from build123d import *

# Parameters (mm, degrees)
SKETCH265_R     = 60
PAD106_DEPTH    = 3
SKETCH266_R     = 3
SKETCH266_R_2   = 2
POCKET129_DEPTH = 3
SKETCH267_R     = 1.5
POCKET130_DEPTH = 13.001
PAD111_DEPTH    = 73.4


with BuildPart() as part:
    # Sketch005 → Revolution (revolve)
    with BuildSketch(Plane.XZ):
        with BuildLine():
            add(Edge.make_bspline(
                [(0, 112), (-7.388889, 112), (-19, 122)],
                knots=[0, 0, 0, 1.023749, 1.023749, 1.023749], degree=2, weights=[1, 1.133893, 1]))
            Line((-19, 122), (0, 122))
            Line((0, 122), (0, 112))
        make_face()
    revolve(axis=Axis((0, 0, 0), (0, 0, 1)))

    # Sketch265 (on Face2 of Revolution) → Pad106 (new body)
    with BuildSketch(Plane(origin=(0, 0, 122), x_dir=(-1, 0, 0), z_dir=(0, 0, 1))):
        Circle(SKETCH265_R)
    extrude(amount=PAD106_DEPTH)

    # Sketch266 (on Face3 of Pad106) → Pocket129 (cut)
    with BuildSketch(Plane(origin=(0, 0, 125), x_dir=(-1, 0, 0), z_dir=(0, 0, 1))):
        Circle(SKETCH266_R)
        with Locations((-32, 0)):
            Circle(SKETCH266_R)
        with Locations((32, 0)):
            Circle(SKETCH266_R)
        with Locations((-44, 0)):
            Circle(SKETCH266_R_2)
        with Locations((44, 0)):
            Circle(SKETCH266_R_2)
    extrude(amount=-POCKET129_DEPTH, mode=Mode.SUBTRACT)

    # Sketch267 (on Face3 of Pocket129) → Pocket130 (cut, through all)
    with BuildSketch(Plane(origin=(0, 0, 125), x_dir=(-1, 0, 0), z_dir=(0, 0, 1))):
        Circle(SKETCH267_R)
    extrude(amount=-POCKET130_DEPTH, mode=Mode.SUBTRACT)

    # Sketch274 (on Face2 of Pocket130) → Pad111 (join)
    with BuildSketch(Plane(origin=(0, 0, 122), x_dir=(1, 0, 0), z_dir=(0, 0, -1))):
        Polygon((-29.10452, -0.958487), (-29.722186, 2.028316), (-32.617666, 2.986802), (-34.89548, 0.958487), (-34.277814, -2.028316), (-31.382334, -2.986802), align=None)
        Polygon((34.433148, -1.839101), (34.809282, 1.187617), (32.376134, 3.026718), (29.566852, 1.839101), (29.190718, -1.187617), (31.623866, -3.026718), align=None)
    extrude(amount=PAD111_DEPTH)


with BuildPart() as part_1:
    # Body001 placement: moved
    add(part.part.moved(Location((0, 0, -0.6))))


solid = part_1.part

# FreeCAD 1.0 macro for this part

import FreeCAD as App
import Part
import Sketcher
from FreeCAD import Vector
Q = App.Units.Quantity


def add_polygon(sketch, points):
    """Adds a closed chain of lines whose ends are joined by coincident constraints."""
    first, n = sketch.GeometryCount, len(points)
    for a, b in zip(points, points[1:] + points[:1]):
        sketch.addGeometry(Part.LineSegment(App.Vector(*a, 0), App.Vector(*b, 0)), False)
    for i in range(n):
        sketch.addConstraint(Sketcher.Constraint("Coincident", first + i, 2, first + (i + 1) % n, 1))

doc = App.newDocument("Part")
body = doc.addObject("PartDesign::Body", "Body")

# Sketch on XZ plane
sketch1 = body.newObject("Sketcher::SketchObject", "Sketch")
sketch1.AttachmentSupport = (doc.getObject("XZ_Plane"), [""])
sketch1.MapMode = "FlatFace"
sketch1.addGeometry([
    Part.BSplineCurve([Vector(0, 112, 0), Vector(-7.388889, 112, 0), Vector(-19, 122, 0)], [3, 3], [0, 1.023749], False, 2, [1, 1.133893, 1], False),
    Part.LineSegment(Vector(0, 112, 0), Vector(0, 122, 0)),
    Part.LineSegment(Vector(0, 122, 0), Vector(-19, 122, 0)),
], False)
sketch1.addConstraint([
    Sketcher.Constraint("Block", 0),
    Sketcher.Constraint("Coincident", 0, 1, 1, 1),
    Sketcher.Constraint("Coincident", 1, 2, 2, 1),
    Sketcher.Constraint("Coincident", 2, 2, 0, 2),
    Sketcher.Constraint("Vertical", 1),
    Sketcher.Constraint("Horizontal", 2),
])
revolution = body.newObject("PartDesign::Revolution", "Revolution")
revolution.Profile = sketch1
revolution.ReferenceAxis = (sketch1, ["V_Axis"])
revolution.Angle = 360

# Sketch on XY plane
sketch2 = body.newObject("Sketcher::SketchObject", "Sketch001")
sketch2.AttachmentSupport = (doc.getObject("XY_Plane"), [""])
sketch2.MapMode = "FlatFace"
sketch2.AttachmentOffset = App.Placement(Vector(0, 0, 122), App.Rotation())
sketch2.addGeometry(Part.Circle(Vector(0, 0, 0), Vector(0, 0, 1), 60), False)
sketch2.addConstraint([
    Sketcher.Constraint("Coincident", 0, 3, -1, 1),
    Sketcher.Constraint("Diameter", 0, Q("120 mm")),
])
pad1 = body.newObject("PartDesign::Pad", "Pad")
pad1.Profile = sketch2
pad1.Length = 3

# Sketch on XY plane
sketch3 = body.newObject("Sketcher::SketchObject", "Sketch002")
sketch3.AttachmentSupport = (doc.getObject("XY_Plane"), [""])
sketch3.MapMode = "FlatFace"
sketch3.AttachmentOffset = App.Placement(Vector(0, 0, 125), App.Rotation())
sketch3.addGeometry([
    Part.Circle(Vector(0, 0, 0), Vector(0, 0, 1), 3),  # 0
    Part.Circle(Vector(32, 0, 0), Vector(0, 0, 1), 3),  # 1
    Part.Circle(Vector(-32, 0, 0), Vector(0, 0, 1), 3),  # 2
    Part.Circle(Vector(44, 0, 0), Vector(0, 0, 1), 2),  # 3
    Part.Circle(Vector(-44, 0, 0), Vector(0, 0, 1), 2),  # 4
], False)
sketch3.addConstraint([
    Sketcher.Constraint("Coincident", 0, 3, -1, 1),
    Sketcher.Constraint("Equal", 0, 1),
    Sketcher.Constraint("Equal", 1, 2),
    Sketcher.Constraint("Equal", 3, 4),
    Sketcher.Constraint("Symmetric", 1, 3, 2, 3, -1, 1),
    Sketcher.Constraint("Symmetric", 3, 3, 4, 3, -1, 1),
    Sketcher.Constraint("PointOnObject", 1, 3, -1),
    Sketcher.Constraint("PointOnObject", 3, 3, -1),
    Sketcher.Constraint("Diameter", 0, Q("6 mm")),
    Sketcher.Constraint("Diameter", 3, Q("4 mm")),
    Sketcher.Constraint("DistanceX", -1, 1, 1, 3, Q("32 mm")),
    Sketcher.Constraint("DistanceX", -1, 1, 3, 3, Q("44 mm")),
])
pocket1 = body.newObject("PartDesign::Pocket", "Pocket")
pocket1.Profile = sketch3
pocket1.Length = 3

# Sketch on XY plane
sketch4 = body.newObject("Sketcher::SketchObject", "Sketch003")
sketch4.AttachmentSupport = (doc.getObject("XY_Plane"), [""])
sketch4.MapMode = "FlatFace"
sketch4.AttachmentOffset = App.Placement(Vector(0, 0, 125), App.Rotation())
sketch4.addGeometry(Part.Circle(Vector(0, 0, 0), Vector(0, 0, 1), 1.5), False)
sketch4.addConstraint([
    Sketcher.Constraint("Coincident", 0, 3, -1, 1),
    Sketcher.Constraint("Diameter", 0, Q("3 mm")),
])
pocket2 = body.newObject("PartDesign::Pocket", "Pocket001")
pocket2.Profile = sketch4
pocket2.Type = "ThroughAll"

# Sketch on XY plane
sketch5 = body.newObject("Sketcher::SketchObject", "Sketch004")
sketch5.AttachmentSupport = (doc.getObject("XY_Plane"), [""])
sketch5.MapMode = "FlatFace"
sketch5.AttachmentOffset = App.Placement(Vector(0, 0, 122), App.Rotation())
add_polygon(sketch5, [(-29.1, 1), (-29.7, -2), (-32.6, -3), (-34.9, -1), (-34.3, 2), (-31.4, 3)])  # lines 0-5
add_polygon(sketch5, [(34.4, 1.8), (34.8, -1.2), (32.4, -3), (29.6, -1.8), (29.2, 1.2), (31.6, 3)])  # lines 6-11
sketch5.addConstraint([
    Sketcher.Constraint("Parallel", 0, 3),
    Sketcher.Constraint("Parallel", 1, 4),
    Sketcher.Constraint("Parallel", 2, 5),
    Sketcher.Constraint("Parallel", 6, 9),
    Sketcher.Constraint("Parallel", 7, 10),
    Sketcher.Constraint("Parallel", 8, 11),
    Sketcher.Constraint("Equal", 0, 1),
    Sketcher.Constraint("Equal", 1, 2),
    Sketcher.Constraint("Equal", 2, 3),
    Sketcher.Constraint("Equal", 5, 6),
    Sketcher.Constraint("Equal", 6, 7),
    Sketcher.Constraint("Equal", 7, 8),
    Sketcher.Constraint("Equal", 8, 9),
    Sketcher.Constraint("Distance", 0, Q("3.050001 mm")),
    Sketcher.Constraint("DistanceY", 1, 2, -1, 1, Q("2.986802 mm")),
    Sketcher.Constraint("DistanceY", -1, 1, 4, 2, Q("2.986802 mm")),
    Sketcher.Constraint("DistanceY", 8, 2, -1, 1, Q("1.839101 mm")),
    Sketcher.Constraint("DistanceY", -1, 1, 11, 2, Q("1.839101 mm")),
    Sketcher.Constraint("DistanceY", 0, 2, 6, 2, Q("0.840699 mm")),
    Sketcher.Constraint("DistanceY", 7, 2, 6, 2, Q("1.839101 mm")),
    Sketcher.Constraint("DistanceX", 1, 2, 7, 2, Q("64.9938 mm")),
    Sketcher.Constraint("DistanceX", 2, 2, -1, 1, Q("34.89548 mm")),
    Sketcher.Constraint("DistanceX", 5, 2, -1, 1, Q("29.10452 mm")),
    Sketcher.Constraint("DistanceX", -1, 1, 9, 2, Q("29.190718 mm")),
])
pad2 = body.newObject("PartDesign::Pad", "Pad001")
pad2.Profile = sketch5
pad2.Length = 73.4
pad2.Reversed = True
body2 = doc.addObject("PartDesign::Body", "Body001")
doc.recompute()

body.Placement = App.Placement(Vector(0, 0, -0.6), App.Rotation(Vector(0, 0, 1), 0))
boolean = body2.newObject("PartDesign::Boolean", "Boolean")
boolean.Type = "Fuse"
boolean.addObjects([body])

doc.recompute()
